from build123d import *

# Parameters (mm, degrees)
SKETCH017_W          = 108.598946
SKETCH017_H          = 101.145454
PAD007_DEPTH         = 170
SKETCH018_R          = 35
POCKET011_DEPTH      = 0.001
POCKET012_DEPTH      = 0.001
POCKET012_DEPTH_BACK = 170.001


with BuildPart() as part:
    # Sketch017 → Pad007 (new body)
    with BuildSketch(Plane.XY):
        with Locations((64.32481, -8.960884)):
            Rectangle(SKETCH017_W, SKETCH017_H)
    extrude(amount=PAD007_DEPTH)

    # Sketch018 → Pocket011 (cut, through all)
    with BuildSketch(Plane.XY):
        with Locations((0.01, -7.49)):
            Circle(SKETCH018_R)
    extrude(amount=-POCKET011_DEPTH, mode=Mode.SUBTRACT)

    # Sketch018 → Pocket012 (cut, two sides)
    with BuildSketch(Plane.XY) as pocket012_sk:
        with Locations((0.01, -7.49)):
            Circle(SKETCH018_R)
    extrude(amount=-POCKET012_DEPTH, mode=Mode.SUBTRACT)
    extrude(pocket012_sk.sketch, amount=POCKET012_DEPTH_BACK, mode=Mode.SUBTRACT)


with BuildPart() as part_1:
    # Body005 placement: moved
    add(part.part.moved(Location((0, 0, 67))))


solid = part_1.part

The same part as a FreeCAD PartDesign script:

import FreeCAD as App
import Part
import Sketcher
from FreeCAD import Vector


def add_polygon(sketch, points):
    """Adds a closed chain of lines whose ends are joined by coincident constraints."""
    first, n = sketch.GeometryCount, len(points)
    for a, b in zip(points, points[1:] + points[:1]):
        sketch.addGeometry(Part.LineSegment(App.Vector(*a, 0), App.Vector(*b, 0)), False)
    for i in range(n):
        sketch.addConstraint(Sketcher.Constraint("Coincident", first + i, 2, first + (i + 1) % n, 1))

doc = App.newDocument("Part")
params = doc.addObject("Spreadsheet::Sheet", "Params")
for row, (alias, value) in enumerate([
    ("pad1_length", "170 mm"),
    ("sketch2_diameter", "70 mm"),
    ("sketch3_diameter", "70 mm"),
], start=1):
    params.set(f"A{row}", alias)
    params.set(f"B{row}", "=" + value)
    params.setAlias(f"B{row}", alias)

body = doc.addObject("PartDesign::Body", "Body")

# Sketch on XY plane
sketch1 = body.newObject("Sketcher::SketchObject", "Sketch")
sketch1.AttachmentSupport = (doc.getObject("XY_Plane"), [""])
sketch1.MapMode = "FlatFace"
add_polygon(sketch1, [(10, 42), (10, -60), (119, -60), (119, 42)])  # lines 0-3
sketch1.addConstraint([
    Sketcher.Constraint("Vertical", 0),
    Sketcher.Constraint("Horizontal", 1),
    Sketcher.Constraint("Vertical", 2),
    Sketcher.Constraint("Horizontal", 3),
    Sketcher.Constraint("DistanceX", 1, 1, 1, 2, 108.598946),
    Sketcher.Constraint("DistanceY", 0, 2, 0, 1, 101.145454),
    Sketcher.Constraint("DistanceY", 0, 2, -1, 1, 59.533611),
    Sketcher.Constraint("DistanceX", -1, 1, 0, 2, 10.025337),
])
pad1 = body.newObject("PartDesign::Pad", "Pad")
pad1.Profile = sketch1
pad1.setExpression("Length", "Params.pad1_length")

# Sketch on XY plane
sketch2 = body.newObject("Sketcher::SketchObject", "Sketch001")
sketch2.AttachmentSupport = (doc.getObject("XY_Plane"), [""])
sketch2.MapMode = "FlatFace"
sketch2.addGeometry(Part.Circle(Vector(0, -7, 0), Vector(0, 0, 1), 35), False)
sketch2.addConstraint([
    Sketcher.Constraint("Diameter", 0, 70.0),
    Sketcher.Constraint("DistanceX", -1, 1, 0, 3, 0.01),
    Sketcher.Constraint("DistanceY", 0, 3, -1, 1, 7.49),
])
sketch2.setExpression("Constraints[0]", "Params.sketch2_diameter")
pocket1 = body.newObject("PartDesign::Pocket", "Pocket")
pocket1.Profile = sketch2
pocket1.Type = "ThroughAll"

# Sketch on XY plane
sketch3 = body.newObject("Sketcher::SketchObject", "Sketch002")
sketch3.AttachmentSupport = (doc.getObject("XY_Plane"), [""])
sketch3.MapMode = "FlatFace"
sketch3.addGeometry(Part.Circle(Vector(0, -7, 0), Vector(0, 0, 1), 35), False)
sketch3.addConstraint([
    Sketcher.Constraint("Diameter", 0, 70.0),
    Sketcher.Constraint("DistanceX", -1, 1, 0, 3, 0.01),
    Sketcher.Constraint("DistanceY", 0, 3, -1, 1, 7.49),
])
sketch3.setExpression("Constraints[0]", "Params.sketch3_diameter")
pocket2 = body.newObject("PartDesign::Pocket", "Pocket001")
pocket2.Profile = sketch3
pocket2.Type = "ThroughAll"
pocket2.Midplane = True
body2 = doc.addObject("PartDesign::Body", "Body001")
doc.recompute()

body.Placement = App.Placement(Vector(0, 0, 67), App.Rotation(Vector(0, 0, 1), 0))
boolean = body2.newObject("PartDesign::Boolean", "Boolean")
boolean.Type = "Fuse"
boolean.addObjects([body])

doc.recompute()
